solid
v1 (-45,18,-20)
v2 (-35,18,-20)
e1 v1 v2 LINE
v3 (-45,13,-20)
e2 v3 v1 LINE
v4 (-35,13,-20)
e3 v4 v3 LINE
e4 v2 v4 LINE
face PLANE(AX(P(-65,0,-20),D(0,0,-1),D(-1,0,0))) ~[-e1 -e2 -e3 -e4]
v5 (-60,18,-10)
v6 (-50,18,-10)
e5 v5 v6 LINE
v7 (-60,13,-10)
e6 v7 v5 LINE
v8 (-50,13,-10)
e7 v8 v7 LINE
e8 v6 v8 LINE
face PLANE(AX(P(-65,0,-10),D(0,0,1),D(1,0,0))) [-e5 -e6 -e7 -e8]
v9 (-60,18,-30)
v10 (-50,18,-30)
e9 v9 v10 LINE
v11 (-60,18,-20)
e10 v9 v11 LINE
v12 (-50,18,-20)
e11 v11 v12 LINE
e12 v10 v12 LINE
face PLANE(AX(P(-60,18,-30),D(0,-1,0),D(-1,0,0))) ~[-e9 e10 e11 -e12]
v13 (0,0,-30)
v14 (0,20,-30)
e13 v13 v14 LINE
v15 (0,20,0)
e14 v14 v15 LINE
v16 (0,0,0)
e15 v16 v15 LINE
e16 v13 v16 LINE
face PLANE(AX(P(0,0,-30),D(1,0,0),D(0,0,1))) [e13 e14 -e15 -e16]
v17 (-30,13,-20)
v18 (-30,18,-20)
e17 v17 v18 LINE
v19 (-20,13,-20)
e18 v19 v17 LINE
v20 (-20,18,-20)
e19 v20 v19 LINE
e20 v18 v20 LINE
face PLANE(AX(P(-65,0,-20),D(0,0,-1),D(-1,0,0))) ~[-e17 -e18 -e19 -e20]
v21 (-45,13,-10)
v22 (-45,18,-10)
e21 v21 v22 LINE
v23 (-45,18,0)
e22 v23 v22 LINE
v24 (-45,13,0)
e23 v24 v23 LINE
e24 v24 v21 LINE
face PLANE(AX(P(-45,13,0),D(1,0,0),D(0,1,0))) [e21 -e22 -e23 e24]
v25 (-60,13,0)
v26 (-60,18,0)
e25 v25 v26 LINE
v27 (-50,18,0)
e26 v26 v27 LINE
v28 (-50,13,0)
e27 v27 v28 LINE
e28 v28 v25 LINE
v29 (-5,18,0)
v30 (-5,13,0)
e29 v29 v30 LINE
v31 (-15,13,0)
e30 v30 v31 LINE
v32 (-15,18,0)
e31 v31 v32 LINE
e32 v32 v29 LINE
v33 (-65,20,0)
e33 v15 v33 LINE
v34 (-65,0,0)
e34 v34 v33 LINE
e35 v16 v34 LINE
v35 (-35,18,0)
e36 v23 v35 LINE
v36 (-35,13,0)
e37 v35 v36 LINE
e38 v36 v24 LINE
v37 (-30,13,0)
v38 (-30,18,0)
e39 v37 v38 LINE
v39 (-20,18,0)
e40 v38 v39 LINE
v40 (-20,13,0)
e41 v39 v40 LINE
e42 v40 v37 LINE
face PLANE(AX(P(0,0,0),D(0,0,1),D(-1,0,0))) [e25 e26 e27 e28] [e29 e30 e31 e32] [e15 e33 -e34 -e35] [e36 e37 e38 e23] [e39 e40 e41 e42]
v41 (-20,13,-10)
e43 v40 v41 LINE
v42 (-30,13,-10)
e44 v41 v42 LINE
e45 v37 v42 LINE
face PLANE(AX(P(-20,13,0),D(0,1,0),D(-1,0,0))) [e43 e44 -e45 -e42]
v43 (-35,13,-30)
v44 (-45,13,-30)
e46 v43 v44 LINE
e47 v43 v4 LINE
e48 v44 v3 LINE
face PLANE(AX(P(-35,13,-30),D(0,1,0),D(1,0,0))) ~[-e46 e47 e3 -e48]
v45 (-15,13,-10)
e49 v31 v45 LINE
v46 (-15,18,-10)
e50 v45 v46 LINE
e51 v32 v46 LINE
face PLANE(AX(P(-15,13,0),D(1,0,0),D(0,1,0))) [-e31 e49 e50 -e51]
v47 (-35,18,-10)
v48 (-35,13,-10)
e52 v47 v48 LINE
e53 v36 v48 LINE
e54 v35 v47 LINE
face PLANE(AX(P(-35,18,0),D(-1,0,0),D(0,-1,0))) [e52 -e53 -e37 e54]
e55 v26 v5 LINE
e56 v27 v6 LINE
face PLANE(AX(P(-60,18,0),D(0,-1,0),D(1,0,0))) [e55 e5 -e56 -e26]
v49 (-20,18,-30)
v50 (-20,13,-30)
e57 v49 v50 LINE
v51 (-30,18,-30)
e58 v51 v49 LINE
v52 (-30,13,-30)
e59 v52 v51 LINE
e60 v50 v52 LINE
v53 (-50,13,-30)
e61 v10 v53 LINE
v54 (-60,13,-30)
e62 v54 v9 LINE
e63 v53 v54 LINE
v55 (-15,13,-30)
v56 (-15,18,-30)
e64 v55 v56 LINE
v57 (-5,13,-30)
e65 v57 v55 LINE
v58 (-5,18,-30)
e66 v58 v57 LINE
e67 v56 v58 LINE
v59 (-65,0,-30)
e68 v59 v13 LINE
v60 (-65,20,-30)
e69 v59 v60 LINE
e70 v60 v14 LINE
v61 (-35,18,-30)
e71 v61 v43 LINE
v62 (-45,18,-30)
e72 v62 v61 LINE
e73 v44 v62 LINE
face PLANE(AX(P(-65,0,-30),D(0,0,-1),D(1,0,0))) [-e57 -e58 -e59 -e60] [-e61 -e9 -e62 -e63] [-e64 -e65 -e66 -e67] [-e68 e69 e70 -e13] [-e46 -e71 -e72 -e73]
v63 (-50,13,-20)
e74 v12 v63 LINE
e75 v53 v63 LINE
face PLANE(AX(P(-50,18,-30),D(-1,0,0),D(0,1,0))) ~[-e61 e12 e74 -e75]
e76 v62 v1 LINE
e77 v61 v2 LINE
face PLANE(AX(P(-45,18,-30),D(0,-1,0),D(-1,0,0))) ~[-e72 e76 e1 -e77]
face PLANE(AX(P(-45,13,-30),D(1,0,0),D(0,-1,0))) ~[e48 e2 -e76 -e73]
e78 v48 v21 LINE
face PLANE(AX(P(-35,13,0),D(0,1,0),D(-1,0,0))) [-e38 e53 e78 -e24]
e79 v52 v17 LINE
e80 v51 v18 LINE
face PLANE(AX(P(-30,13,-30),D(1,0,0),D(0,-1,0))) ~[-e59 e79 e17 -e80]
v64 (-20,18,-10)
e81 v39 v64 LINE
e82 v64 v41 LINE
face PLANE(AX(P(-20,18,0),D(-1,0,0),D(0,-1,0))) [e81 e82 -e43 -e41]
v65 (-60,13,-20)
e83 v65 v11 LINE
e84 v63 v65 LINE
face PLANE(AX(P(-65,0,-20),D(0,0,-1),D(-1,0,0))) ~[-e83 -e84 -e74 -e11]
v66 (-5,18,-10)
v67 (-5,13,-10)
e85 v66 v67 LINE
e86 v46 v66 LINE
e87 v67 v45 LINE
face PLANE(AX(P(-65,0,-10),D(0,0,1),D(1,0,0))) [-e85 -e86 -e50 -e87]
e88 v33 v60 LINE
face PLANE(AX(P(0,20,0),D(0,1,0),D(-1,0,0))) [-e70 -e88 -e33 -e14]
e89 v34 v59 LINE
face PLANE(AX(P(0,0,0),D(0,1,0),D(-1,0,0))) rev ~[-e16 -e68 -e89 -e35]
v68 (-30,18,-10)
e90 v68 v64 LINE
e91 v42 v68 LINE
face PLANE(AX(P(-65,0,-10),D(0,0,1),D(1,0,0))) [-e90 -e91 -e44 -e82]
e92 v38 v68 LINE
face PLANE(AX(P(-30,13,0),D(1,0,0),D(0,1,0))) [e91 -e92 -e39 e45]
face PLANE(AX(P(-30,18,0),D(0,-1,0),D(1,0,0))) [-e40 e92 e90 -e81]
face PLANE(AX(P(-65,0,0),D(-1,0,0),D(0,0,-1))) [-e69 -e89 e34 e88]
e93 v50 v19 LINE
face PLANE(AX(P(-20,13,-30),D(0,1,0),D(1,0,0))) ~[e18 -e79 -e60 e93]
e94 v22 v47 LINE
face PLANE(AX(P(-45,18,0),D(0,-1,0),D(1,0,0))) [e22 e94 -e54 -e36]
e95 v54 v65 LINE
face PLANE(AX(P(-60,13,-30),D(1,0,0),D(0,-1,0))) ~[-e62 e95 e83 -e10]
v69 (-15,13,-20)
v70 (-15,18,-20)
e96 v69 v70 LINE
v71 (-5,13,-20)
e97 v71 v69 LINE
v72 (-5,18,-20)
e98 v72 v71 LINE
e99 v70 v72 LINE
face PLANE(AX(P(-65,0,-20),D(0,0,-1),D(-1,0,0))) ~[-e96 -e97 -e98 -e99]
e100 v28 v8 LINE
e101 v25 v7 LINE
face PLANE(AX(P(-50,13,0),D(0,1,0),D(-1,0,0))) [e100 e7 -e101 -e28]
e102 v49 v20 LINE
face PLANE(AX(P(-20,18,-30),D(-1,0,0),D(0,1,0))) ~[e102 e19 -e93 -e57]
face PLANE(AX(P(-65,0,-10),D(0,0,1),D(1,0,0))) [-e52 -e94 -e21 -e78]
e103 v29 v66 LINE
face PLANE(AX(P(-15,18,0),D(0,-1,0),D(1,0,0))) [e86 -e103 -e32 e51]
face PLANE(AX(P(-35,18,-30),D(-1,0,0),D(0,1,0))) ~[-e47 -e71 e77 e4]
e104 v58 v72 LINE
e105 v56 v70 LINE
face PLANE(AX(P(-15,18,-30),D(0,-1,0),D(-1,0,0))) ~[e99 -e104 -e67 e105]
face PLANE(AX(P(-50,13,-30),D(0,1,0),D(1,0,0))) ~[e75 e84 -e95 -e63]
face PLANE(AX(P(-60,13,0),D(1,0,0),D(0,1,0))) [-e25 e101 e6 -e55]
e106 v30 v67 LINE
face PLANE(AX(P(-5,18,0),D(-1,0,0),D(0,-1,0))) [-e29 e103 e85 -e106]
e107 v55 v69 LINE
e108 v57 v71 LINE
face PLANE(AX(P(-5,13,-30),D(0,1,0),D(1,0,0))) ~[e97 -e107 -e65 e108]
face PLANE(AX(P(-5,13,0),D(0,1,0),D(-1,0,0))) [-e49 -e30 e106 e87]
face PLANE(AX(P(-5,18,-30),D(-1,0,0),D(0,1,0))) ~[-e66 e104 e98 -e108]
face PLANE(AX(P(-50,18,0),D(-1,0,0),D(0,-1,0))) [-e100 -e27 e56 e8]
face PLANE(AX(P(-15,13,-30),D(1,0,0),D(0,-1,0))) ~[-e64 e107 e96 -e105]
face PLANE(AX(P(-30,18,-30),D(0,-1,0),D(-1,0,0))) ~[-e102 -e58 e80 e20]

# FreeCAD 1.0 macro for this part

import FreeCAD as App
import Part
import Sketcher

V = App.Vector
Q = App.Units.Quantity

doc = App.newDocument("Part")
params = doc.addObject("Spreadsheet::Sheet", "Params")
for row, (alias, value) in enumerate([
    ("sketch1_width", "65 mm"),
    ("sketch1_height", "30 mm"),
    ("pad1_length", "20 mm"),
    ("sketch2_width", "10 mm"),
    ("sketch2_height", "5 mm"),
    ("pocket1_length", "10 mm"),
], start=1):
    params.set(f"A{row}", alias)
    params.set(f"B{row}", "=" + value)
    params.setAlias(f"B{row}", alias)

body = doc.addObject("PartDesign::Body", "Body")

sketch1 = body.newObject("Sketcher::SketchObject", "Sketch")
sketch1.AttachmentSupport = (doc.getObject("XZ_Plane"), [""])
sketch1.MapMode = "FlatFace"
sketch1.addGeometry([
    Part.LineSegment(V(-65, 0, 0), V(0, 0, 0)),
    Part.LineSegment(V(0, 0, 0), V(0, -30, 0)),
    Part.LineSegment(V(0, -30, 0), V(-65, -30, 0)),
    Part.LineSegment(V(-65, -30, 0), V(-65, 0, 0)),
], False)
sketch1.addConstraint([
    Sketcher.Constraint("Coincident", 0, 2, 1, 1),
    Sketcher.Constraint("Coincident", 1, 2, 2, 1),
    Sketcher.Constraint("Coincident", 2, 2, 3, 1),
    Sketcher.Constraint("Coincident", 3, 2, 0, 1),
    Sketcher.Constraint("Horizontal", 0),
    Sketcher.Constraint("Vertical", 1),
    Sketcher.Constraint("Horizontal", 2),
    Sketcher.Constraint("Vertical", 3),
    Sketcher.Constraint("Coincident", 0, 2, -1, 1),
    Sketcher.Constraint("DistanceX", 0, 1, 0, 2, Q("65 mm")),
    Sketcher.Constraint("DistanceY", 1, 2, 1, 1, Q("30 mm")),
])
sketch1.setExpression("Constraints[9]", "Params.sketch1_width")
sketch1.setExpression("Constraints[10]", "Params.sketch1_height")
pad1 = body.newObject("PartDesign::Pad", "Pad")
pad1.Profile = sketch1
pad1.setExpression("Length", "Params.pad1_length")
pad1.Reversed = True

sketch2 = body.newObject("Sketcher::SketchObject", "Sketch001")
sketch2.AttachmentSupport = (doc.getObject("XY_Plane"), [""])
sketch2.MapMode = "FlatFace"
sketch2.addGeometry([
    Part.LineSegment(V(-50, 18, 0), V(-60, 18, 0)),
    Part.LineSegment(V(-60, 18, 0), V(-60, 13, 0)),
    Part.LineSegment(V(-60, 13, 0), V(-50, 13, 0)),
    Part.LineSegment(V(-50, 13, 0), V(-50, 18, 0)),
    Part.LineSegment(V(-35, 13, 0), V(-35, 18, 0)),
    Part.LineSegment(V(-35, 18, 0), V(-45, 18, 0)),
    Part.LineSegment(V(-45, 18, 0), V(-45, 13, 0)),
    Part.LineSegment(V(-45, 13, 0), V(-35, 13, 0)),
    Part.LineSegment(V(-20, 13, 0), V(-20, 18, 0)),
    Part.LineSegment(V(-20, 18, 0), V(-30, 18, 0)),
    Part.LineSegment(V(-30, 18, 0), V(-30, 13, 0)),
    Part.LineSegment(V(-30, 13, 0), V(-20, 13, 0)),
    Part.LineSegment(V(-5, 13, 0), V(-5, 18, 0)),
    Part.LineSegment(V(-5, 18, 0), V(-15, 18, 0)),
    Part.LineSegment(V(-15, 18, 0), V(-15, 13, 0)),
    Part.LineSegment(V(-15, 13, 0), V(-5, 13, 0)),
], False)
sketch2.addConstraint([
    Sketcher.Constraint("Coincident", 0, 2, 1, 1),
    Sketcher.Constraint("Coincident", 1, 2, 2, 1),
    Sketcher.Constraint("Coincident", 2, 2, 3, 1),
    Sketcher.Constraint("Coincident", 3, 2, 0, 1),
    Sketcher.Constraint("Coincident", 4, 2, 5, 1),
    Sketcher.Constraint("Coincident", 5, 2, 6, 1),
    Sketcher.Constraint("Coincident", 6, 2, 7, 1),
    Sketcher.Constraint("Coincident", 7, 2, 4, 1),
    Sketcher.Constraint("Coincident", 8, 2, 9, 1),
    Sketcher.Constraint("Coincident", 9, 2, 10, 1),
    Sketcher.Constraint("Coincident", 10, 2, 11, 1),
    Sketcher.Constraint("Coincident", 11, 2, 8, 1),
    Sketcher.Constraint("Coincident", 12, 2, 13, 1),
    Sketcher.Constraint("Coincident", 13, 2, 14, 1),
    Sketcher.Constraint("Coincident", 14, 2, 15, 1),
    Sketcher.Constraint("Coincident", 15, 2, 12, 1),
    Sketcher.Constraint("Horizontal", 0),
    Sketcher.Constraint("Vertical", 1),
    Sketcher.Constraint("Horizontal", 2),
    Sketcher.Constraint("Vertical", 3),
    Sketcher.Constraint("Vertical", 4),
    Sketcher.Constraint("Horizontal", 5),
    Sketcher.Constraint("Vertical", 6),
    Sketcher.Constraint("Horizontal", 7),
    Sketcher.Constraint("Vertical", 8),
    Sketcher.Constraint("Horizontal", 9),
    Sketcher.Constraint("Vertical", 10),
    Sketcher.Constraint("Horizontal", 11),
    Sketcher.Constraint("Vertical", 12),
    Sketcher.Constraint("Horizontal", 13),
    Sketcher.Constraint("Vertical", 14),
    Sketcher.Constraint("Horizontal", 15),
    Sketcher.Constraint("Horizontal", 3, 2, 4, 2),
    Sketcher.Constraint("Horizontal", 2, 2, 6, 2),
    Sketcher.Constraint("Horizontal", 5, 2, 8, 2),
    Sketcher.Constraint("Horizontal", 7, 2, 10, 2),
    Sketcher.Constraint("Horizontal", 9, 2, 12, 2),
    Sketcher.Constraint("Horizontal", 11, 2, 14, 2),
    Sketcher.Constraint("Equal", 2, 5),
    Sketcher.Constraint("Equal", 7, 9),
    Sketcher.Constraint("Equal", 11, 13),
    Sketcher.Constraint("DistanceX", 0, 2, 0, 1, Q("10 mm")),
    Sketcher.Constraint("DistanceY", 1, 2, 1, 1, Q("5 mm")),
    Sketcher.Constraint("DistanceY", -1, 1, 1, 2, Q("13 mm")),
    Sketcher.Constraint("DistanceX", 12, 2, -1, 1, Q("5 mm")),
    Sketcher.Constraint("DistanceX", 3, 2, 4, 2, Q("15 mm")),
    Sketcher.Constraint("DistanceX", 4, 2, 8, 2, Q("15 mm")),
    Sketcher.Constraint("DistanceX", 8, 2, 12, 2, Q("15 mm")),
])
sketch2.setExpression("Constraints[41]", "Params.sketch2_width")
sketch2.setExpression("Constraints[42]", "Params.sketch2_height")
pocket1 = body.newObject("PartDesign::Pocket", "Pocket")
pocket1.Profile = sketch2
pocket1.setExpression("Length", "Params.pocket1_length")
doc.recompute()

datumplane = body.newObject("PartDesign::Plane", "DatumPlane")
datumplane.AttachmentSupport = (doc.getObject("XY_Plane"), [""])
datumplane.MapMode = "FlatFace"
datumplane.AttachmentOffset = App.Placement(V(0, 0, -15), App.Rotation())
mirrored = body.newObject("PartDesign::Mirrored", "Mirrored")
mirrored.Originals = [pocket1]
mirrored.MirrorPlane = (datumplane, [""])
body.Tip = mirrored

doc.recompute()
